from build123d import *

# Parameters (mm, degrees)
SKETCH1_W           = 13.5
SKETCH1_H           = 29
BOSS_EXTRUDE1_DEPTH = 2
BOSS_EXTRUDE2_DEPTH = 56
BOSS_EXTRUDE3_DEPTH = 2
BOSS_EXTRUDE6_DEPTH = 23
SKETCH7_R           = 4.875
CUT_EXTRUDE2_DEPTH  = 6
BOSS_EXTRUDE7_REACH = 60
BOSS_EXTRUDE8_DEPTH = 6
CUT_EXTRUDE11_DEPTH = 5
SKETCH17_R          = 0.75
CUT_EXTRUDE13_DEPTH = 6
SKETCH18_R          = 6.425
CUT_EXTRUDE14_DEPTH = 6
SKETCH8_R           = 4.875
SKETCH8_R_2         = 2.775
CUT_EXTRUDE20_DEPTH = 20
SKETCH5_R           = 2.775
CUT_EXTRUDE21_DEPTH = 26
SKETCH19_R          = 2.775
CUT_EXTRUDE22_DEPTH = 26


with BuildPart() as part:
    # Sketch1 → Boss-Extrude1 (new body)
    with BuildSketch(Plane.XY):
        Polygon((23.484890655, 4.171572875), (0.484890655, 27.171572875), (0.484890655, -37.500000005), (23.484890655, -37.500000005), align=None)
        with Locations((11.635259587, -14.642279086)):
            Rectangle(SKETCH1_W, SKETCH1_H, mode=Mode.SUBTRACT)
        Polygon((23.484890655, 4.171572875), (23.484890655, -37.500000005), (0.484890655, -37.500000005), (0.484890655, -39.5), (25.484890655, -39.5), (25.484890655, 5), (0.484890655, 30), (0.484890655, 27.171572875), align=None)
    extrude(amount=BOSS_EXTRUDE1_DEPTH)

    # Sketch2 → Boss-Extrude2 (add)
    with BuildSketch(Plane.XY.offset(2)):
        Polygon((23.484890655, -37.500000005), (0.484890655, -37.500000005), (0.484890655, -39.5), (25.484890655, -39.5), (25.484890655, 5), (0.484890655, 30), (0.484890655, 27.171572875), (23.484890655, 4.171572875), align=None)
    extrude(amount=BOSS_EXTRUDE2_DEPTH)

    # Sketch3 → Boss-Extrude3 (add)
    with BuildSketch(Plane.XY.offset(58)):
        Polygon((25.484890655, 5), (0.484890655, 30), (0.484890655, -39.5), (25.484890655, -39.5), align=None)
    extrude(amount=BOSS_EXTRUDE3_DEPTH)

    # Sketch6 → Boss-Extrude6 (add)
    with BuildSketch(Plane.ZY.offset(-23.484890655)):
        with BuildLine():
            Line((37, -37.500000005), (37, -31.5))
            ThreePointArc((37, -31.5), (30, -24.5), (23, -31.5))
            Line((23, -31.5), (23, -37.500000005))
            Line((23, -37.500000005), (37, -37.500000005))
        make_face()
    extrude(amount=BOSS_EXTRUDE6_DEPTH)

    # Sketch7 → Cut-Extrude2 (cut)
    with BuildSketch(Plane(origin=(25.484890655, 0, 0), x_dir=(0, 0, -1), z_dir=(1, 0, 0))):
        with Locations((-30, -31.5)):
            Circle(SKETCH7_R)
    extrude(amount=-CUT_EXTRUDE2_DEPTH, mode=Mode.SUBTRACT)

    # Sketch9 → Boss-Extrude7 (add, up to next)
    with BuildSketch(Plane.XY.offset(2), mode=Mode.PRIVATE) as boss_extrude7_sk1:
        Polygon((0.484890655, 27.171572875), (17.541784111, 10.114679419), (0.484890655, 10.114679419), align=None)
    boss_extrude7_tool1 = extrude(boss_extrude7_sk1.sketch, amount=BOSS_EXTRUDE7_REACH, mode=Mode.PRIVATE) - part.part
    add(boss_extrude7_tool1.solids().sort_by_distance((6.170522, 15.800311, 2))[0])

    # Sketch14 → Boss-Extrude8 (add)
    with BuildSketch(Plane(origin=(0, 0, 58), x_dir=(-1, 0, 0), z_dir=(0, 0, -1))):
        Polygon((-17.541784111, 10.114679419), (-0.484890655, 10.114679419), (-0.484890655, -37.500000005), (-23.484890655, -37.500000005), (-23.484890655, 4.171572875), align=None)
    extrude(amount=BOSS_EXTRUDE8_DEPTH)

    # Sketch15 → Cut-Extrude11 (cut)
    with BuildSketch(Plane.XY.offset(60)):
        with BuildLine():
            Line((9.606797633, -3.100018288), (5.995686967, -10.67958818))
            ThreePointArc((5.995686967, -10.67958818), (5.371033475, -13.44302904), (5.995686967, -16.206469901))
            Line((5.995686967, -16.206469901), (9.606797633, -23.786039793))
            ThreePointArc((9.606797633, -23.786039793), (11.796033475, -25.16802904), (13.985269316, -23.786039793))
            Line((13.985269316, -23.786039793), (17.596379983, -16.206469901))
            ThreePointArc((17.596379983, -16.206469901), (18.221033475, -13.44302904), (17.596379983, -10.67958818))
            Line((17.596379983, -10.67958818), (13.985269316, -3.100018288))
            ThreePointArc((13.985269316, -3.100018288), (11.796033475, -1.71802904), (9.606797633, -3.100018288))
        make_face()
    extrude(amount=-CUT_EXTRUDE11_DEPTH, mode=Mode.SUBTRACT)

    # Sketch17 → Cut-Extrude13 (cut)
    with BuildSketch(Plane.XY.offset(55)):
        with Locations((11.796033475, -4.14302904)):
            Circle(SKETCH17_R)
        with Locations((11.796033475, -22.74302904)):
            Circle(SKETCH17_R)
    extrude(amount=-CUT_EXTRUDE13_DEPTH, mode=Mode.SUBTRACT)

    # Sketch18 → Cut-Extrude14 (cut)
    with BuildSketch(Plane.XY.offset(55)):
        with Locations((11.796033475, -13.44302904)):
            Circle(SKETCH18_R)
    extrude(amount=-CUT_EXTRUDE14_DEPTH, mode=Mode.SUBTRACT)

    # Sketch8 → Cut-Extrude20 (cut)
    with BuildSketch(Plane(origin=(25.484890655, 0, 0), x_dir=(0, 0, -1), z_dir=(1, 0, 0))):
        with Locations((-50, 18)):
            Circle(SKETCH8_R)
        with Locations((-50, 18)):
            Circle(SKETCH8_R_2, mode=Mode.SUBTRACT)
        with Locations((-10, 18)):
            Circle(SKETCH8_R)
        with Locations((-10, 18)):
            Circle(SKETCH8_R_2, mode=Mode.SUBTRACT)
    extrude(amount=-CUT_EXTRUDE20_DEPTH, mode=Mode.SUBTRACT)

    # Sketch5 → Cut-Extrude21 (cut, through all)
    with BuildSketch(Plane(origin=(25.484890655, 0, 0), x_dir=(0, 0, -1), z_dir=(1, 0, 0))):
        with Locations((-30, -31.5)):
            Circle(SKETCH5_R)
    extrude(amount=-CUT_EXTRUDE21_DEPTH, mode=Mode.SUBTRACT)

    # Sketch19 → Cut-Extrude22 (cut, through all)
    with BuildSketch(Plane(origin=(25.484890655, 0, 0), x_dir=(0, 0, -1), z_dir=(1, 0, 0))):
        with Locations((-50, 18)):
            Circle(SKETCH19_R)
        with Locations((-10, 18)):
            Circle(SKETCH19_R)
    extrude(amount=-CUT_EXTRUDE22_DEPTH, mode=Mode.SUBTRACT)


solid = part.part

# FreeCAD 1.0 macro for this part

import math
import FreeCAD as App
import Part
import Sketcher
Q = App.Units.Quantity

doc = App.newDocument("Part")
params = doc.addObject("Spreadsheet::Sheet", "Params")
for row, (alias, value) in enumerate([
    ("sketch1_width", "25 mm"),
    ("sketch1_height", "29 mm"),
    ("sketch1_width2", "13.5 mm"),
    ("sketch1_height2", "44.5 mm"),
    ("pad1_length", "2 mm"),
    ("sketch2_width", "23 mm"),
    ("sketch2_width2", "25 mm"),
    ("sketch2_height", "2 mm"),
    ("sketch2_height2", "44.5 mm"),
    ("pad2_length", "56 mm"),
    ("sketch3_width", "25 mm"),
    ("sketch3_height", "69.5 mm"),
    ("pad3_length", "2 mm"),
    ("sketch4_radius", "7 mm"),
    ("sketch4_width", "6 mm"),
    ("pad4_length", "23 mm"),
    ("sketch5_diameter", "9.75 mm"),
    ("pocket1_length", "6 mm"),
    ("sketch7_width", "23 mm"),
    ("pad6_length", "6 mm"),
    ("pocket2_length", "5 mm"),
    ("sketch9_diameter", "1.5 mm"),
    ("pocket3_length", "6 mm"),
    ("sketch10_diameter", "12.85 mm"),
    ("pocket4_length", "6 mm"),
    ("sketch11_diameter", "9.75 mm"),
    ("sketch11_diameter2", "5.55 mm"),
    ("pocket5_length", "20 mm"),
    ("sketch12_diameter", "5.55 mm"),
    ("sketch13_diameter", "5.55 mm"),
], start=1):
    params.set(f"A{row}", alias)
    params.set(f"B{row}", "=" + value)
    params.setAlias(f"B{row}", alias)

body = doc.addObject("PartDesign::Body", "Body")

# Sketch on XY plane
sketch1 = body.newObject("Sketcher::SketchObject", "Sketch")
sketch1.AttachmentSupport = (doc.getObject("XY_Plane"), [""])
sketch1.MapMode = "FlatFace"
sketch1.addGeometry([
    Part.LineSegment(App.Vector(0.484891, -39.5, 0), App.Vector(25.484891, -39.5, 0)),  # 0
    Part.LineSegment(App.Vector(25.484891, -39.5, 0), App.Vector(25.484891, 5, 0)),  # 1
    Part.LineSegment(App.Vector(25.484891, 5, 0), App.Vector(0.484891, 30, 0)),  # 2
    Part.LineSegment(App.Vector(0.484891, 30, 0), App.Vector(0.484891, -39.5, 0)),  # 3
    Part.LineSegment(App.Vector(18.38526, -29.142279, 0), App.Vector(4.88526, -29.142279, 0)),  # 4
    Part.LineSegment(App.Vector(4.88526, -29.142279, 0), App.Vector(4.88526, -0.142279, 0)),  # 5
    Part.LineSegment(App.Vector(4.88526, -0.142279, 0), App.Vector(18.38526, -0.142279, 0)),  # 6
    Part.LineSegment(App.Vector(18.38526, -0.142279, 0), App.Vector(18.38526, -29.142279, 0)),  # 7
], False)
sketch1.addConstraint([
    Sketcher.Constraint("Coincident", 0, 2, 1, 1),
    Sketcher.Constraint("Coincident", 1, 2, 2, 1),
    Sketcher.Constraint("Coincident", 2, 2, 3, 1),
    Sketcher.Constraint("Coincident", 3, 2, 0, 1),
    Sketcher.Constraint("Coincident", 4, 2, 5, 1),
    Sketcher.Constraint("Coincident", 5, 2, 6, 1),
    Sketcher.Constraint("Coincident", 6, 2, 7, 1),
    Sketcher.Constraint("Coincident", 7, 2, 4, 1),
    Sketcher.Constraint("Horizontal", 0),
    Sketcher.Constraint("Vertical", 1),
    Sketcher.Constraint("Vertical", 3),
    Sketcher.Constraint("Horizontal", 4),
    Sketcher.Constraint("Vertical", 5),
    Sketcher.Constraint("Horizontal", 6),
    Sketcher.Constraint("Vertical", 7),
    Sketcher.Constraint("DistanceX", 0, 1, 0, 2, 25.0),
    Sketcher.Constraint("DistanceY", 5, 1, 5, 2, 29.0),
    Sketcher.Constraint("Angle", 2, Q("135 deg")),
    Sketcher.Constraint("DistanceX", 4, 2, 4, 1, 13.5),
    Sketcher.Constraint("DistanceY", 1, 1, 1, 2, 44.5),
    Sketcher.Constraint("DistanceY", -1, 1, 1, 2, 5.0),
    Sketcher.Constraint("DistanceX", -1, 1, 0, 2, 25.484891),
    Sketcher.Constraint("DistanceX", -1, 1, 4, 2, 4.88526),
    Sketcher.Constraint("DistanceY", 4, 2, -1, 1, 29.142279),
])
sketch1.setExpression("Constraints[15]", "Params.sketch1_width")
sketch1.setExpression("Constraints[16]", "Params.sketch1_height")
sketch1.setExpression("Constraints[18]", "Params.sketch1_width2")
sketch1.setExpression("Constraints[19]", "Params.sketch1_height2")
pad1 = body.newObject("PartDesign::Pad", "Pad")
pad1.Profile = sketch1
pad1.setExpression("Length", "Params.pad1_length")

# Sketch on XY plane
sketch2 = body.newObject("Sketcher::SketchObject", "Sketch001")
sketch2.AttachmentSupport = (doc.getObject("XY_Plane"), [""])
sketch2.MapMode = "FlatFace"
sketch2.AttachmentOffset = App.Placement(App.Vector(0, 0, 2), App.Rotation())
sketch2.addGeometry([
    Part.LineSegment(App.Vector(23.484891, -37.5, 0), App.Vector(0.484891, -37.5, 0)),  # 0
    Part.LineSegment(App.Vector(0.484891, -37.5, 0), App.Vector(0.484891, -39.5, 0)),  # 1
    Part.LineSegment(App.Vector(0.484891, -39.5, 0), App.Vector(25.484891, -39.5, 0)),  # 2
    Part.LineSegment(App.Vector(25.484891, -39.5, 0), App.Vector(25.484891, 5, 0)),  # 3
    Part.LineSegment(App.Vector(25.484891, 5, 0), App.Vector(0.484891, 30, 0)),  # 4
    Part.LineSegment(App.Vector(0.484891, 30, 0), App.Vector(0.484891, 27.171573, 0)),  # 5
    Part.LineSegment(App.Vector(0.484891, 27.171573, 0), App.Vector(23.484891, 4.171573, 0)),  # 6
    Part.LineSegment(App.Vector(23.484891, 4.171573, 0), App.Vector(23.484891, -37.5, 0)),  # 7
], False)
sketch2.addConstraint([
    Sketcher.Constraint("Coincident", 0, 2, 1, 1),
    Sketcher.Constraint("Coincident", 1, 2, 2, 1),
    Sketcher.Constraint("Coincident", 2, 2, 3, 1),
    Sketcher.Constraint("Coincident", 3, 2, 4, 1),
    Sketcher.Constraint("Coincident", 4, 2, 5, 1),
    Sketcher.Constraint("Coincident", 5, 2, 6, 1),
    Sketcher.Constraint("Coincident", 6, 2, 7, 1),
    Sketcher.Constraint("Coincident", 7, 2, 0, 1),
    Sketcher.Constraint("Horizontal", 0),
    Sketcher.Constraint("Vertical", 1),
    Sketcher.Constraint("Horizontal", 2),
    Sketcher.Constraint("Vertical", 3),
    Sketcher.Constraint("Vertical", 5),
    Sketcher.Constraint("Vertical", 7),
    Sketcher.Constraint("Parallel", 4, 6),
    Sketcher.Constraint("Vertical", 1, 2, 4, 2),
    Sketcher.Constraint("DistanceX", 0, 2, 0, 1, 23.0),
    Sketcher.Constraint("DistanceX", 2, 1, 2, 2, 25.0),
    Sketcher.Constraint("DistanceY", 1, 2, 1, 1, 2.0),
    Sketcher.Constraint("Angle", 4, Q("135 deg")),
    Sketcher.Constraint("DistanceY", 3, 1, 3, 2, 44.5),
    Sketcher.Constraint("DistanceY", -1, 1, 3, 2, 5.0),
    Sketcher.Constraint("DistanceY", 5, 2, 5, 1, 2.828427),
    Sketcher.Constraint("DistanceX", -1, 1, 0, 2, 0.484891),
])
sketch2.setExpression("Constraints[16]", "Params.sketch2_width")
sketch2.setExpression("Constraints[17]", "Params.sketch2_width2")
sketch2.setExpression("Constraints[18]", "Params.sketch2_height")
sketch2.setExpression("Constraints[20]", "Params.sketch2_height2")
pad2 = body.newObject("PartDesign::Pad", "Pad001")
pad2.Profile = sketch2
pad2.setExpression("Length", "Params.pad2_length")

# Sketch on XY plane
sketch3 = body.newObject("Sketcher::SketchObject", "Sketch002")
sketch3.AttachmentSupport = (doc.getObject("XY_Plane"), [""])
sketch3.MapMode = "FlatFace"
sketch3.AttachmentOffset = App.Placement(App.Vector(0, 0, 58), App.Rotation())
sketch3.addGeometry([
    Part.LineSegment(App.Vector(25.484891, 5, 0), App.Vector(0.484891, 30, 0)),
    Part.LineSegment(App.Vector(0.484891, 30, 0), App.Vector(0.484891, -39.5, 0)),
    Part.LineSegment(App.Vector(0.484891, -39.5, 0), App.Vector(25.484891, -39.5, 0)),
    Part.LineSegment(App.Vector(25.484891, -39.5, 0), App.Vector(25.484891, 5, 0)),
], False)
sketch3.addConstraint([
    Sketcher.Constraint("Coincident", 0, 2, 1, 1),
    Sketcher.Constraint("Coincident", 1, 2, 2, 1),
    Sketcher.Constraint("Coincident", 2, 2, 3, 1),
    Sketcher.Constraint("Coincident", 3, 2, 0, 1),
    Sketcher.Constraint("Vertical", 1),
    Sketcher.Constraint("Horizontal", 2),
    Sketcher.Constraint("Vertical", 3),
    Sketcher.Constraint("DistanceX", 2, 1, 2, 2, 25.0),
    Sketcher.Constraint("Angle", 0, Q("135 deg")),
    Sketcher.Constraint("DistanceY", 1, 2, 1, 1, 69.5),
    Sketcher.Constraint("DistanceY", -1, 1, 0, 2, 30.0),
    Sketcher.Constraint("DistanceX", -1, 1, 0, 2, 0.484891),
])
sketch3.setExpression("Constraints[7]", "Params.sketch3_width")
sketch3.setExpression("Constraints[9]", "Params.sketch3_height")
pad3 = body.newObject("PartDesign::Pad", "Pad002")
pad3.Profile = sketch3
pad3.setExpression("Length", "Params.pad3_length")

# Sketch on YZ plane
sketch4 = body.newObject("Sketcher::SketchObject", "Sketch003")
sketch4.AttachmentSupport = (doc.getObject("YZ_Plane"), [""])
sketch4.MapMode = "FlatFace"
sketch4.AttachmentOffset = App.Placement(App.Vector(0, 0, 23.484891), App.Rotation())
sketch4.addGeometry([
    Part.LineSegment(App.Vector(-37.5, 37, 0), App.Vector(-31.5, 37, 0)),
    Part.ArcOfCircle(Part.Circle(App.Vector(-31.5, 30, 0), App.Vector(0, 0, 1), 7), math.radians(-90), math.radians(90)),
    Part.LineSegment(App.Vector(-31.5, 23, 0), App.Vector(-37.5, 23, 0)),
    Part.LineSegment(App.Vector(-37.5, 23, 0), App.Vector(-37.5, 37, 0)),
], False)
sketch4.addConstraint([
    Sketcher.Constraint("Tangent", 0, 2, 1, 2),
    Sketcher.Constraint("Tangent", 1, 1, 2, 1),
    Sketcher.Constraint("Coincident", 2, 2, 3, 1),
    Sketcher.Constraint("Coincident", 3, 2, 0, 1),
    Sketcher.Constraint("Horizontal", 0),
    Sketcher.Constraint("Horizontal", 2),
    Sketcher.Constraint("Vertical", 3),
    Sketcher.Constraint("Radius", 1, 7.0),
    Sketcher.Constraint("DistanceX", 0, 1, 0, 2, 6.0),
    Sketcher.Constraint("DistanceY", -1, 1, 1, 3, 30.0),
    Sketcher.Constraint("DistanceX", 1, 3, -1, 1, 31.5),
])
sketch4.setExpression("Constraints[7]", "Params.sketch4_radius")
sketch4.setExpression("Constraints[8]", "Params.sketch4_width")
pad4 = body.newObject("PartDesign::Pad", "Pad003")
pad4.Profile = sketch4
pad4.setExpression("Length", "Params.pad4_length")
pad4.Reversed = True

# Sketch on YZ plane
sketch5 = body.newObject("Sketcher::SketchObject", "Sketch004")
sketch5.AttachmentSupport = (doc.getObject("YZ_Plane"), [""])
sketch5.MapMode = "FlatFace"
sketch5.AttachmentOffset = App.Placement(App.Vector(0, 0, 25.484891), App.Rotation())
sketch5.addGeometry(Part.Circle(App.Vector(-31.5, 30, 0), App.Vector(0, 0, 1), 4.875), False)
sketch5.addConstraint([
    Sketcher.Constraint("Diameter", 0, 9.75),
    Sketcher.Constraint("DistanceY", -1, 1, 0, 3, 30.0),
    Sketcher.Constraint("DistanceX", 0, 3, -1, 1, 31.5),
])
sketch5.setExpression("Constraints[0]", "Params.sketch5_diameter")
pocket1 = body.newObject("PartDesign::Pocket", "Pocket")
pocket1.Profile = sketch5
pocket1.setExpression("Length", "Params.pocket1_length")

# Sketch on XY plane
sketch6 = body.newObject("Sketcher::SketchObject", "Sketch005")
sketch6.AttachmentSupport = (doc.getObject("XY_Plane"), [""])
sketch6.MapMode = "FlatFace"
sketch6.AttachmentOffset = App.Placement(App.Vector(0, 0, 2), App.Rotation())
sketch6.addGeometry([
    Part.LineSegment(App.Vector(17.541784, 10.114679, 0), App.Vector(0.484891, 27.171573, 0)),
    Part.LineSegment(App.Vector(0.484891, 27.171573, 0), App.Vector(0.484891, 10.114679, 0)),
    Part.LineSegment(App.Vector(0.484891, 10.114679, 0), App.Vector(17.541784, 10.114679, 0)),
], False)
sketch6.addConstraint([
    Sketcher.Constraint("Coincident", 0, 2, 1, 1),
    Sketcher.Constraint("Coincident", 1, 2, 2, 1),
    Sketcher.Constraint("Coincident", 2, 2, 0, 1),
    Sketcher.Constraint("Vertical", 1),
    Sketcher.Constraint("Horizontal", 2),
    Sketcher.Constraint("Equal", 2, 1),
    Sketcher.Constraint("Distance", 0, 24.12209),
    Sketcher.Constraint("DistanceX", -1, 1, 0, 2, 0.484891),
    Sketcher.Constraint("DistanceY", -1, 1, 1, 2, 10.114679),
])
pad5 = body.newObject("PartDesign::Pad", "Pad004")
pad5.Profile = sketch6
pad5.Type = "UpToFirst"

# Sketch on XY plane
sketch7 = body.newObject("Sketcher::SketchObject", "Sketch006")
sketch7.AttachmentSupport = (doc.getObject("XY_Plane"), [""])
sketch7.MapMode = "FlatFace"
sketch7.AttachmentOffset = App.Placement(App.Vector(0, 0, 58), App.Rotation())
sketch7.addGeometry([
    Part.LineSegment(App.Vector(0.484891, 10.114679, 0), App.Vector(17.541784, 10.114679, 0)),  # 0
    Part.LineSegment(App.Vector(17.541784, 10.114679, 0), App.Vector(23.484891, 4.171573, 0)),  # 1
    Part.LineSegment(App.Vector(23.484891, 4.171573, 0), App.Vector(23.484891, -37.5, 0)),  # 2
    Part.LineSegment(App.Vector(23.484891, -37.5, 0), App.Vector(0.484891, -37.5, 0)),  # 3
    Part.LineSegment(App.Vector(0.484891, -37.5, 0), App.Vector(0.484891, 10.114679, 0)),  # 4
], False)
sketch7.addConstraint([
    Sketcher.Constraint("Coincident", 0, 2, 1, 1),
    Sketcher.Constraint("Coincident", 1, 2, 2, 1),
    Sketcher.Constraint("Coincident", 2, 2, 3, 1),
    Sketcher.Constraint("Coincident", 3, 2, 4, 1),
    Sketcher.Constraint("Coincident", 4, 2, 0, 1),
    Sketcher.Constraint("Horizontal", 0),
    Sketcher.Constraint("Vertical", 2),
    Sketcher.Constraint("Horizontal", 3),
    Sketcher.Constraint("Vertical", 4),
    Sketcher.Constraint("DistanceX", 3, 2, 3, 1, 23.0),
    Sketcher.Constraint("Angle", 1, Q("-45 deg")),
    Sketcher.Constraint("DistanceY", 2, 2, -1, 1, 37.5),
    Sketcher.Constraint("DistanceY", 4, 1, 4, 2, 47.614679),
    Sketcher.Constraint("Distance", 1, 8.404822),
    Sketcher.Constraint("DistanceX", -1, 1, 1, 2, 23.484891),
])
sketch7.setExpression("Constraints[9]", "Params.sketch7_width")
pad6 = body.newObject("PartDesign::Pad", "Pad005")
pad6.Profile = sketch7
pad6.setExpression("Length", "Params.pad6_length")
pad6.Reversed = True

# Sketch on XY plane
sketch8 = body.newObject("Sketcher::SketchObject", "Sketch007")
sketch8.AttachmentSupport = (doc.getObject("XY_Plane"), [""])
sketch8.MapMode = "FlatFace"
sketch8.AttachmentOffset = App.Placement(App.Vector(0, 0, 60), App.Rotation())
sketch8.addGeometry([
    Part.LineSegment(App.Vector(9.606798, -3.100018, 0), App.Vector(5.995687, -10.679588, 0)),  # 0
    Part.ArcOfCircle(Part.Circle(App.Vector(11.796033, -13.443029, 0), App.Vector(0, 0, 1), 6.425), math.radians(154.525616), math.radians(205.474384)),  # 1
    Part.LineSegment(App.Vector(5.995687, -16.20647, 0), App.Vector(9.606798, -23.78604, 0)),  # 2
    Part.ArcOfCircle(Part.Circle(App.Vector(11.796033, -22.743029, 0), App.Vector(0, 0, 1), 2.425), math.radians(-154.525616), math.radians(-25.474384)),  # 3
    Part.LineSegment(App.Vector(13.985269, -23.78604, 0), App.Vector(17.59638, -16.20647, 0)),  # 4
    Part.ArcOfCircle(Part.Circle(App.Vector(11.796033, -13.443029, 0), App.Vector(0, 0, 1), 6.425), math.radians(-25.474384), math.radians(25.474384)),  # 5
    Part.LineSegment(App.Vector(17.59638, -10.679588, 0), App.Vector(13.985269, -3.100018, 0)),  # 6
    Part.ArcOfCircle(Part.Circle(App.Vector(11.796033, -4.143029, 0), App.Vector(0, 0, 1), 2.425), math.radians(25.474384), math.radians(154.525616)),  # 7
], False)
sketch8.addConstraint([
    Sketcher.Constraint("Tangent", 0, 2, 1, 1),
    Sketcher.Constraint("Tangent", 1, 2, 2, 1),
    Sketcher.Constraint("Tangent", 2, 2, 3, 1),
    Sketcher.Constraint("Tangent", 3, 2, 4, 1),
    Sketcher.Constraint("Tangent", 4, 2, 5, 1),
    Sketcher.Constraint("Tangent", 5, 2, 6, 1),
    Sketcher.Constraint("Tangent", 6, 2, 7, 1),
    Sketcher.Constraint("Tangent", 7, 2, 0, 1),
    Sketcher.Constraint("Coincident", 5, 3, 1, 3),
    Sketcher.Constraint("Equal", 1, 5),
    Sketcher.Constraint("Equal", 3, 7),
    Sketcher.Constraint("Parallel", 0, 4),
    Sketcher.Constraint("Parallel", 2, 6),
    Sketcher.Constraint("Horizontal", 2, 2, 3, 2),
    Sketcher.Constraint("Radius", 1, 6.425),
    Sketcher.Constraint("Radius", 3, 2.425),
    Sketcher.Constraint("DistanceY", 3, 3, 1, 3, 9.3),
    Sketcher.Constraint("DistanceY", 1, 3, -1, 1, 13.443029),
    Sketcher.Constraint("DistanceX", -1, 1, 3, 2, 13.985269),
])
pocket2 = body.newObject("PartDesign::Pocket", "Pocket001")
pocket2.Profile = sketch8
pocket2.setExpression("Length", "Params.pocket2_length")

# Sketch on XY plane
sketch9 = body.newObject("Sketcher::SketchObject", "Sketch008")
sketch9.AttachmentSupport = (doc.getObject("XY_Plane"), [""])
sketch9.MapMode = "FlatFace"
sketch9.AttachmentOffset = App.Placement(App.Vector(0, 0, 55), App.Rotation())
sketch9.addGeometry([
    Part.Circle(App.Vector(11.796033, -4.143029, 0), App.Vector(0, 0, 1), 0.75),
    Part.Circle(App.Vector(11.796033, -22.743029, 0), App.Vector(0, 0, 1), 0.75),
], False)
sketch9.addConstraint([
    Sketcher.Constraint("Equal", 0, 1),
    Sketcher.Constraint("Vertical", 0, 3, 1, 3),
    Sketcher.Constraint("Diameter", 0, 1.5),
    Sketcher.Constraint("DistanceY", 1, 3, 0, 3, 18.6),
    Sketcher.Constraint("DistanceY", 0, 3, -1, 1, 4.143029),
    Sketcher.Constraint("DistanceX", -1, 1, 0, 3, 11.796033),
])
sketch9.setExpression("Constraints[2]", "Params.sketch9_diameter")
pocket3 = body.newObject("PartDesign::Pocket", "Pocket002")
pocket3.Profile = sketch9
pocket3.setExpression("Length", "Params.pocket3_length")

# Sketch on XY plane
sketch10 = body.newObject("Sketcher::SketchObject", "Sketch009")
sketch10.AttachmentSupport = (doc.getObject("XY_Plane"), [""])
sketch10.MapMode = "FlatFace"
sketch10.AttachmentOffset = App.Placement(App.Vector(0, 0, 55), App.Rotation())
sketch10.addGeometry(Part.Circle(App.Vector(11.796033, -13.443029, 0), App.Vector(0, 0, 1), 6.425), False)
sketch10.addConstraint([
    Sketcher.Constraint("Diameter", 0, 12.85),
    Sketcher.Constraint("DistanceY", 0, 3, -1, 1, 13.443029),
    Sketcher.Constraint("DistanceX", -1, 1, 0, 3, 11.796033),
])
sketch10.setExpression("Constraints[0]", "Params.sketch10_diameter")
pocket4 = body.newObject("PartDesign::Pocket", "Pocket003")
pocket4.Profile = sketch10
pocket4.setExpression("Length", "Params.pocket4_length")

# Sketch on YZ plane
sketch11 = body.newObject("Sketcher::SketchObject", "Sketch010")
sketch11.AttachmentSupport = (doc.getObject("YZ_Plane"), [""])
sketch11.MapMode = "FlatFace"
sketch11.AttachmentOffset = App.Placement(App.Vector(0, 0, 25.484891), App.Rotation())
sketch11.addGeometry([
    Part.Circle(App.Vector(18, 50, 0), App.Vector(0, 0, 1), 4.875),
    Part.Circle(App.Vector(18, 50, 0), App.Vector(0, 0, 1), 2.775),
    Part.Circle(App.Vector(18, 10, 0), App.Vector(0, 0, 1), 4.875),
    Part.Circle(App.Vector(18, 10, 0), App.Vector(0, 0, 1), 2.775),
], False)
sketch11.addConstraint([
    Sketcher.Constraint("Coincident", 1, 3, 0, 3),
    Sketcher.Constraint("Coincident", 3, 3, 2, 3),
    Sketcher.Constraint("Equal", 0, 2),
    Sketcher.Constraint("Equal", 1, 3),
    Sketcher.Constraint("Vertical", 1, 3, 2, 3),
    Sketcher.Constraint("Diameter", 0, 9.75),
    Sketcher.Constraint("Diameter", 1, 5.55),
    Sketcher.Constraint("DistanceX", -1, 1, 0, 3, 18.0),
    Sketcher.Constraint("DistanceY", -1, 1, 0, 3, 50.0),
    Sketcher.Constraint("DistanceY", -1, 1, 2, 3, 10.0),
])
sketch11.setExpression("Constraints[5]", "Params.sketch11_diameter")
sketch11.setExpression("Constraints[6]", "Params.sketch11_diameter2")
pocket5 = body.newObject("PartDesign::Pocket", "Pocket004")
pocket5.Profile = sketch11
pocket5.setExpression("Length", "Params.pocket5_length")

# Sketch on YZ plane
sketch12 = body.newObject("Sketcher::SketchObject", "Sketch011")
sketch12.AttachmentSupport = (doc.getObject("YZ_Plane"), [""])
sketch12.MapMode = "FlatFace"
sketch12.AttachmentOffset = App.Placement(App.Vector(0, 0, 25.484891), App.Rotation())
sketch12.addGeometry(Part.Circle(App.Vector(-31.5, 30, 0), App.Vector(0, 0, 1), 2.775), False)
sketch12.addConstraint([
    Sketcher.Constraint("Diameter", 0, 5.55),
    Sketcher.Constraint("DistanceY", -1, 1, 0, 3, 30.0),
    Sketcher.Constraint("DistanceX", 0, 3, -1, 1, 31.5),
])
sketch12.setExpression("Constraints[0]", "Params.sketch12_diameter")
pocket6 = body.newObject("PartDesign::Pocket", "Pocket005")
pocket6.Profile = sketch12
pocket6.Type = "ThroughAll"

# Sketch on YZ plane
sketch13 = body.newObject("Sketcher::SketchObject", "Sketch012")
sketch13.AttachmentSupport = (doc.getObject("YZ_Plane"), [""])
sketch13.MapMode = "FlatFace"
sketch13.AttachmentOffset = App.Placement(App.Vector(0, 0, 25.484891), App.Rotation())
sketch13.addGeometry([
    Part.Circle(App.Vector(18, 50, 0), App.Vector(0, 0, 1), 2.775),
    Part.Circle(App.Vector(18, 10, 0), App.Vector(0, 0, 1), 2.775),
], False)
sketch13.addConstraint([
    Sketcher.Constraint("Equal", 0, 1),
    Sketcher.Constraint("Vertical", 0, 3, 1, 3),
    Sketcher.Constraint("Diameter", 0, 5.55),
    Sketcher.Constraint("DistanceX", -1, 1, 0, 3, 18.0),
    Sketcher.Constraint("DistanceY", -1, 1, 0, 3, 50.0),
    Sketcher.Constraint("DistanceY", -1, 1, 1, 3, 10.0),
])
sketch13.setExpression("Constraints[2]", "Params.sketch13_diameter")
pocket7 = body.newObject("PartDesign::Pocket", "Pocket006")
pocket7.Profile = sketch13
pocket7.Type = "ThroughAll"

doc.recompute()
